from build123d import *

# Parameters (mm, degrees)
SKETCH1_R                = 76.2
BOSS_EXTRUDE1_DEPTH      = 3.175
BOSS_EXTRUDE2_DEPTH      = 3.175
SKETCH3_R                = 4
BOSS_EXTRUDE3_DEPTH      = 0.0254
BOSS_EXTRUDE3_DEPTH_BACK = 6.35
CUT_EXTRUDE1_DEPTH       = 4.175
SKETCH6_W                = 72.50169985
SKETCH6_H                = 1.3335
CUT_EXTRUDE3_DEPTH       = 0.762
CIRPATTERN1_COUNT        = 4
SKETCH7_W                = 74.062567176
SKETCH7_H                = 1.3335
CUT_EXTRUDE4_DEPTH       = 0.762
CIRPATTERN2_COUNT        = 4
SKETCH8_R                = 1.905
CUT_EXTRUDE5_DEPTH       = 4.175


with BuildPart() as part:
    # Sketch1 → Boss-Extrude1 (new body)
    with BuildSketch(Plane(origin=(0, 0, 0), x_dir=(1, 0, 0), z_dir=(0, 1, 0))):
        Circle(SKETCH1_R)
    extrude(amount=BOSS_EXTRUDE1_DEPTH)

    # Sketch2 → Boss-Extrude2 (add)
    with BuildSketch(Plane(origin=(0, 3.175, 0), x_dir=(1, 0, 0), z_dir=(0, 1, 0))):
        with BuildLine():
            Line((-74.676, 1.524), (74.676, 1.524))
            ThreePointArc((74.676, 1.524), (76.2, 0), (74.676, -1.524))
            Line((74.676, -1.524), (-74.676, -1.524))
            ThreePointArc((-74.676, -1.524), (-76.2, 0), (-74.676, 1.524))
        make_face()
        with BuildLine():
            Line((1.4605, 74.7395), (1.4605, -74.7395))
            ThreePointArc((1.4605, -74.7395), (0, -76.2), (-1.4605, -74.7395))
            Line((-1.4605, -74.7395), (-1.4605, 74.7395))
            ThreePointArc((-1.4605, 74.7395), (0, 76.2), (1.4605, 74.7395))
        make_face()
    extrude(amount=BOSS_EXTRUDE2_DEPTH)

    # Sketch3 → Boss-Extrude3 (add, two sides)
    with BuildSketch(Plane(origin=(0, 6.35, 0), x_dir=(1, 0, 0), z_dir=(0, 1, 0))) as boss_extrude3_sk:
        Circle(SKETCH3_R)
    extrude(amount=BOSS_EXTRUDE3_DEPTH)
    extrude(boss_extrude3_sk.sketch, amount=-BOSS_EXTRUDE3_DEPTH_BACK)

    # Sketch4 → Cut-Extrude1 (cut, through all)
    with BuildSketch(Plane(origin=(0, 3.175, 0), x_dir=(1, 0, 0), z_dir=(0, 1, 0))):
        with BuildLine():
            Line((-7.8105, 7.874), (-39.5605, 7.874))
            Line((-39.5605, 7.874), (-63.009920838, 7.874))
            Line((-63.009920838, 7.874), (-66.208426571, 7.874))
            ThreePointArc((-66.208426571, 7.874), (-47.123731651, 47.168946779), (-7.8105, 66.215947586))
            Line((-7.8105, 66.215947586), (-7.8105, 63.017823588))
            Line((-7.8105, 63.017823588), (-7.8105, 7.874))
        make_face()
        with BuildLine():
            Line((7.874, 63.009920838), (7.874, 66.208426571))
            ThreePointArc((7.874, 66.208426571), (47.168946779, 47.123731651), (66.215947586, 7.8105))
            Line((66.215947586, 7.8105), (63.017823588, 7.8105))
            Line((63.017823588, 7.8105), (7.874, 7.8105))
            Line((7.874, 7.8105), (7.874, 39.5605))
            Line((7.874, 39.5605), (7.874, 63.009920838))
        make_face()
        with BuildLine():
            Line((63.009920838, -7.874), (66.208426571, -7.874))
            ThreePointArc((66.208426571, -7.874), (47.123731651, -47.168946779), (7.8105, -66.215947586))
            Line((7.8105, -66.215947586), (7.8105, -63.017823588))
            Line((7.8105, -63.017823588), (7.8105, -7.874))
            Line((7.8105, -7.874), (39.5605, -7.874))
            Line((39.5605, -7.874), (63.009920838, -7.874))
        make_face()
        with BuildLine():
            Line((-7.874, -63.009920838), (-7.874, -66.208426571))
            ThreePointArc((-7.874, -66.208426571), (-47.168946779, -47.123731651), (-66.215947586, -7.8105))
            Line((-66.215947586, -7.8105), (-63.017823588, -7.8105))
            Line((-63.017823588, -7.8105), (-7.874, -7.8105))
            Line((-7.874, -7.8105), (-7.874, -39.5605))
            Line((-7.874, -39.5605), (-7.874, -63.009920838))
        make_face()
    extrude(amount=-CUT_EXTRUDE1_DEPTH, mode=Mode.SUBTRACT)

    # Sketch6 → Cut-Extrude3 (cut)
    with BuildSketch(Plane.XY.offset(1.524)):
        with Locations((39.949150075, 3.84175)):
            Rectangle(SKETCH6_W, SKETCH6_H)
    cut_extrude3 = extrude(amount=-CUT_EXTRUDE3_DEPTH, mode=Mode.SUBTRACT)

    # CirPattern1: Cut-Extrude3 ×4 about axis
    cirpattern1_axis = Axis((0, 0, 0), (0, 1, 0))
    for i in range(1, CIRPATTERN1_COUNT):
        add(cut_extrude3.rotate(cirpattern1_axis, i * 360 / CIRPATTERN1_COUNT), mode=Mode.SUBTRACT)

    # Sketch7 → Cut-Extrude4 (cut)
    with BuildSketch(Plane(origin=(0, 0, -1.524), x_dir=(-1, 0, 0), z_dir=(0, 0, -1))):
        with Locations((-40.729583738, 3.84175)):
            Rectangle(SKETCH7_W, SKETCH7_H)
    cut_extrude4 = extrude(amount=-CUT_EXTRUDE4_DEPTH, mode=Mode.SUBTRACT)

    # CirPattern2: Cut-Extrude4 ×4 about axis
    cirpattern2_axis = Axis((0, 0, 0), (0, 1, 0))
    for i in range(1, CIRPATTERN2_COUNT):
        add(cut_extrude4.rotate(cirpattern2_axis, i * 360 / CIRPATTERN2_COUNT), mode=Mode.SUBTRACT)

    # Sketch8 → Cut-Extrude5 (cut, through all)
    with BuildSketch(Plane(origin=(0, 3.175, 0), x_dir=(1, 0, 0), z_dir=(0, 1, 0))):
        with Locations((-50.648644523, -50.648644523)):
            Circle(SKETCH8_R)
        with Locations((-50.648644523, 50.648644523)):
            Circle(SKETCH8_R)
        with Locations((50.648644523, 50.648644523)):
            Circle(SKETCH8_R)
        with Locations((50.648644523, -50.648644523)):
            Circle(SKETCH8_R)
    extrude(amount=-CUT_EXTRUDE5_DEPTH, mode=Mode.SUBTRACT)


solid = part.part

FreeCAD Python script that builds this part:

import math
import FreeCAD as App
import Part
import Sketcher
Q = App.Units.Quantity


def add_polygon(sketch, points):
    """Adds a closed chain of lines whose ends are joined by coincident constraints."""
    first, n = sketch.GeometryCount, len(points)
    for a, b in zip(points, points[1:] + points[:1]):
        sketch.addGeometry(Part.LineSegment(App.Vector(*a, 0), App.Vector(*b, 0)), False)
    for i in range(n):
        sketch.addConstraint(Sketcher.Constraint("Coincident", first + i, 2, first + (i + 1) % n, 1))

doc = App.newDocument("Part")
params = doc.addObject("Spreadsheet::Sheet", "Params")
for row, (alias, value) in enumerate([
    ("sketch1_diameter", "6 in"),
    ("pad1_length", "0.125 in"),
    ("sketch2_radius", "0.06 in"),
    ("pad2_length", "0.125 in"),
    ("pad3_length", "0.001 in"),
    ("pad3_length2", "0.25 in"),
    ("sketch4_radius", "2.625 in"),
    ("pocket2_length", "0.03 in"),
    ("pocket3_length", "0.03 in"),
    ("sketch7_diameter", "0.15 in"),
], start=1):
    params.set(f"A{row}", alias)
    params.set(f"B{row}", "=" + value)
    params.setAlias(f"B{row}", alias)

body = doc.addObject("PartDesign::Body", "Body")

sketch1 = body.newObject("Sketcher::SketchObject", "Sketch")
sketch1.AttachmentSupport = (doc.getObject("XZ_Plane"), [""])
sketch1.MapMode = "FlatFace"
sketch1.addGeometry(Part.Circle(App.Vector(0, 0, 0), App.Vector(0, 0, 1), 76), False)
sketch1.addConstraint(Sketcher.Constraint("Coincident", 0, 3, -1, 1))
sketch1.addConstraint(Sketcher.Constraint("Diameter", 0, Q("6 in")))
sketch1.setExpression("Constraints[1]", "Params.sketch1_diameter")
pad1 = body.newObject("PartDesign::Pad", "Pad")
pad1.Profile = sketch1
pad1.setExpression("Length", "Params.pad1_length")
pad1.Reversed = True

sketch2 = body.newObject("Sketcher::SketchObject", "Sketch001")
sketch2.AttachmentSupport = (doc.getObject("XZ_Plane"), [""])
sketch2.MapMode = "FlatFace"
sketch2.AttachmentOffset = App.Placement(App.Vector(0, 0, -0.125 * 25.4), App.Rotation())
sketch2.addGeometry(Part.ArcOfCircle(Part.Circle(App.Vector(-74.7, 0, 0), App.Vector(0, 0, 1), 1.5), math.radians(90), math.radians(270)), False)
sketch2.addGeometry(Part.LineSegment(App.Vector(-74.7, 1.5, 0), App.Vector(-1.5, 1.5, 0)), False)
sketch2.addGeometry(Part.LineSegment(App.Vector(-1.5, 1.5, 0), App.Vector(-1.5, 74.7, 0)), False)
sketch2.addGeometry(Part.ArcOfCircle(Part.Circle(App.Vector(0, 74.7, 0), App.Vector(0, 0, 1), 1.5), math.radians(0), math.radians(180)), False)
sketch2.addGeometry(Part.LineSegment(App.Vector(1.5, 74.7, 0), App.Vector(1.5, 1.5, 0)), False)
sketch2.addGeometry(Part.LineSegment(App.Vector(1.5, 1.5, 0), App.Vector(74.7, 1.5, 0)), False)
sketch2.addGeometry(Part.ArcOfCircle(Part.Circle(App.Vector(74.7, 0, 0), App.Vector(0, 0, 1), 1.5), math.radians(-90), math.radians(90)), False)
sketch2.addGeometry(Part.LineSegment(App.Vector(74.7, -1.5, 0), App.Vector(1.5, -1.5, 0)), False)
sketch2.addGeometry(Part.LineSegment(App.Vector(1.5, -1.5, 0), App.Vector(1.5, -74.7, 0)), False)
sketch2.addGeometry(Part.ArcOfCircle(Part.Circle(App.Vector(0, -74.7, 0), App.Vector(0, 0, 1), 1.5), math.radians(180), math.radians(360)), False)
sketch2.addGeometry(Part.LineSegment(App.Vector(-1.5, -74.7, 0), App.Vector(-1.5, -1.5, 0)), False)
sketch2.addGeometry(Part.LineSegment(App.Vector(-1.5, -1.5, 0), App.Vector(-74.7, -1.5, 0)), False)
sketch2.addConstraint(Sketcher.Constraint("Tangent", 0, 1, 1, 1))
sketch2.addConstraint(Sketcher.Constraint("Coincident", 1, 2, 2, 1))
sketch2.addConstraint(Sketcher.Constraint("Tangent", 2, 2, 3, 2))
sketch2.addConstraint(Sketcher.Constraint("Tangent", 3, 1, 4, 1))
sketch2.addConstraint(Sketcher.Constraint("Coincident", 4, 2, 5, 1))
sketch2.addConstraint(Sketcher.Constraint("Tangent", 5, 2, 6, 2))
sketch2.addConstraint(Sketcher.Constraint("Tangent", 6, 1, 7, 1))
sketch2.addConstraint(Sketcher.Constraint("Coincident", 7, 2, 8, 1))
sketch2.addConstraint(Sketcher.Constraint("Tangent", 8, 2, 9, 2))
sketch2.addConstraint(Sketcher.Constraint("Tangent", 9, 1, 10, 1))
sketch2.addConstraint(Sketcher.Constraint("Coincident", 10, 2, 11, 1))
sketch2.addConstraint(Sketcher.Constraint("Tangent", 11, 2, 0, 2))
sketch2.addConstraint(Sketcher.Constraint("Horizontal", 1))
sketch2.addConstraint(Sketcher.Constraint("Vertical", 2))
sketch2.addConstraint(Sketcher.Constraint("Vertical", 4))
sketch2.addConstraint(Sketcher.Constraint("Horizontal", 5))
sketch2.addConstraint(Sketcher.Constraint("Horizontal", 7))
sketch2.addConstraint(Sketcher.Constraint("Vertical", 8))
sketch2.addConstraint(Sketcher.Constraint("Vertical", 10))
sketch2.addConstraint(Sketcher.Constraint("Horizontal", 11))
sketch2.addConstraint(Sketcher.Constraint("Equal", 0, 6))
sketch2.addConstraint(Sketcher.Constraint("Equal", 3, 9))
sketch2.addConstraint(Sketcher.Constraint("Symmetric", 0, 3, 6, 3, -1, 1))
sketch2.addConstraint(Sketcher.Constraint("Symmetric", 3, 3, 9, 3, -1, 1))
sketch2.addConstraint(Sketcher.Constraint("Symmetric", 1, 2, 4, 2, -2))
sketch2.addConstraint(Sketcher.Constraint("Equal", 11, 2))
sketch2.addConstraint(Sketcher.Constraint("Radius", 0, Q("0.06 in")))
sketch2.addConstraint(Sketcher.Constraint("Radius", 3, Q("0.0575 in")))
sketch2.addConstraint(Sketcher.Constraint("DistanceX", 0, 3, -1, 1, Q("2.94 in")))
sketch2.setExpression("Constraints[26]", "Params.sketch2_radius")
pad2 = body.newObject("PartDesign::Pad", "Pad001")
pad2.Profile = sketch2
pad2.setExpression("Length", "Params.pad2_length")
pad2.Reversed = True

sketch3 = body.newObject("Sketcher::SketchObject", "Sketch002")
sketch3.AttachmentSupport = (doc.getObject("XZ_Plane"), [""])
sketch3.MapMode = "FlatFace"
sketch3.AttachmentOffset = App.Placement(App.Vector(0, 0, -0.25 * 25.4), App.Rotation())
sketch3.addGeometry(Part.Circle(App.Vector(0, 0, 0), App.Vector(0, 0, 1), 4), False)
sketch3.addConstraint(Sketcher.Constraint("Coincident", 0, 3, -1, 1))
sketch3.addConstraint(Sketcher.Constraint("Diameter", 0, Q("8 mm")))
pad3 = body.newObject("PartDesign::Pad", "Pad002")
pad3.Profile = sketch3
pad3.Type = "TwoLengths"
pad3.setExpression("Length", "Params.pad3_length")
pad3.setExpression("Length2", "Params.pad3_length2")
pad3.Reversed = True

sketch4 = body.newObject("Sketcher::SketchObject", "Sketch003")
sketch4.AttachmentSupport = (doc.getObject("XZ_Plane"), [""])
sketch4.MapMode = "FlatFace"
sketch4.AttachmentOffset = App.Placement(App.Vector(0, 0, -0.125 * 25.4), App.Rotation())
sketch4.addGeometry(Part.LineSegment(App.Vector(-66, -8, 0), App.Vector(-8, -8, 0)), False)
sketch4.addGeometry(Part.LineSegment(App.Vector(-8, -8, 0), App.Vector(-8, -66, 0)), False)
sketch4.addGeometry(Part.ArcOfCircle(Part.Circle(App.Vector(0, 0, 0), App.Vector(0, 0, 1), 67), math.radians(-173), math.radians(-97)), False)
sketch4.addGeometry(Part.ArcOfCircle(Part.Circle(App.Vector(0, 0, 0), App.Vector(0, 0, 1), 67), math.radians(-83), math.radians(-7)), False)
sketch4.addGeometry(Part.LineSegment(App.Vector(8, -66, 0), App.Vector(8, -8, 0)), False)
sketch4.addGeometry(Part.LineSegment(App.Vector(8, -8, 0), App.Vector(66, -8, 0)), False)
sketch4.addGeometry(Part.ArcOfCircle(Part.Circle(App.Vector(0, 0, 0), App.Vector(0, 0, 1), 67), math.radians(7), math.radians(83)), False)
sketch4.addGeometry(Part.LineSegment(App.Vector(66, 8, 0), App.Vector(8, 8, 0)), False)
sketch4.addGeometry(Part.LineSegment(App.Vector(8, 8, 0), App.Vector(8, 66, 0)), False)
sketch4.addGeometry(Part.ArcOfCircle(Part.Circle(App.Vector(0, 0, 0), App.Vector(0, 0, 1), 67), math.radians(97), math.radians(173)), False)
sketch4.addGeometry(Part.LineSegment(App.Vector(-8, 66, 0), App.Vector(-8, 8, 0)), False)
sketch4.addGeometry(Part.LineSegment(App.Vector(-8, 8, 0), App.Vector(-66, 8, 0)), False)
sketch4.addConstraint(Sketcher.Constraint("Coincident", 0, 2, 1, 1))
sketch4.addConstraint(Sketcher.Constraint("Coincident", 1, 2, 2, 2))
sketch4.addConstraint(Sketcher.Constraint("Coincident", 2, 1, 0, 1))
sketch4.addConstraint(Sketcher.Constraint("Coincident", 3, 1, 4, 1))
sketch4.addConstraint(Sketcher.Constraint("Coincident", 4, 2, 5, 1))
sketch4.addConstraint(Sketcher.Constraint("Coincident", 5, 2, 3, 2))
sketch4.addConstraint(Sketcher.Constraint("Coincident", 6, 1, 7, 1))
sketch4.addConstraint(Sketcher.Constraint("Coincident", 7, 2, 8, 1))
sketch4.addConstraint(Sketcher.Constraint("Coincident", 8, 2, 6, 2))
sketch4.addConstraint(Sketcher.Constraint("Coincident", 9, 1, 10, 1))
sketch4.addConstraint(Sketcher.Constraint("Coincident", 10, 2, 11, 1))
sketch4.addConstraint(Sketcher.Constraint("Coincident", 11, 2, 9, 2))
sketch4.addConstraint(Sketcher.Constraint("Horizontal", 0))
sketch4.addConstraint(Sketcher.Constraint("Vertical", 1))
sketch4.addConstraint(Sketcher.Constraint("Vertical", 4))
sketch4.addConstraint(Sketcher.Constraint("Horizontal", 5))
sketch4.addConstraint(Sketcher.Constraint("Horizontal", 7))
sketch4.addConstraint(Sketcher.Constraint("Vertical", 8))
sketch4.addConstraint(Sketcher.Constraint("Vertical", 10))
sketch4.addConstraint(Sketcher.Constraint("Horizontal", 11))
sketch4.addConstraint(Sketcher.Constraint("Coincident", 2, 3, -1, 1))
sketch4.addConstraint(Sketcher.Constraint("Coincident", 3, 3, -1, 1))
sketch4.addConstraint(Sketcher.Constraint("Coincident", 6, 3, -1, 1))
sketch4.addConstraint(Sketcher.Constraint("Coincident", 9, 3, -1, 1))
sketch4.addConstraint(Sketcher.Constraint("Equal", 2, 3))
sketch4.addConstraint(Sketcher.Constraint("Equal", 3, 6))
sketch4.addConstraint(Sketcher.Constraint("Equal", 6, 9))
sketch4.addConstraint(Sketcher.Constraint("Symmetric", 0, 2, 7, 2, -1, 1))
sketch4.addConstraint(Sketcher.Constraint("Symmetric", 4, 2, 10, 2, -1, 1))
sketch4.addConstraint(Sketcher.Constraint("Equal", 11, 1))
sketch4.addConstraint(Sketcher.Constraint("Equal", 7, 4))
sketch4.addConstraint(Sketcher.Constraint("Radius", 2, Q("2.625 in")))
sketch4.addConstraint(Sketcher.Constraint("DistanceY", 0, 2, -1, 1, Q("0.31 in")))
sketch4.addConstraint(Sketcher.Constraint("DistanceX", 0, 2, -1, 1, Q("0.3075 in")))
sketch4.setExpression("Constraints[31]", "Params.sketch4_radius")
pocket1 = body.newObject("PartDesign::Pocket", "Pocket")
pocket1.Profile = sketch4
pocket1.Type = "ThroughAll"
pocket1.Reversed = True

sketch5 = body.newObject("Sketcher::SketchObject", "Sketch004")
sketch5.AttachmentSupport = (doc.getObject("XY_Plane"), [""])
sketch5.MapMode = "FlatFace"
sketch5.AttachmentOffset = App.Placement(App.Vector(0, 0, 0.06 * 25.4), App.Rotation())
add_polygon(sketch5, [(3.7, 4.5), (3.7, 3.2), (76.2, 3.2), (76.2, 4.5)])
sketch5.addConstraint(Sketcher.Constraint("Vertical", 0))
sketch5.addConstraint(Sketcher.Constraint("Horizontal", 1))
sketch5.addConstraint(Sketcher.Constraint("Vertical", 2))
sketch5.addConstraint(Sketcher.Constraint("Horizontal", 3))
sketch5.addConstraint(Sketcher.Constraint("DistanceX", -1, 1, 1, 2, Q("3 in")))
sketch5.addConstraint(Sketcher.Constraint("DistanceY", 0, 2, 0, 1, Q("0.0525 in")))
sketch5.addConstraint(Sketcher.Constraint("DistanceY", -1, 1, 0, 2, Q("0.125 in")))
sketch5.addConstraint(Sketcher.Constraint("DistanceX", 1, 1, 1, 2, Q("72.5017 mm")))
pocket2 = body.newObject("PartDesign::Pocket", "Pocket001")
pocket2.Profile = sketch5
pocket2.setExpression("Length", "Params.pocket2_length")
doc.recompute()

polarpattern = body.newObject("PartDesign::PolarPattern", "PolarPattern")
polarpattern.Originals = [pocket2]
polarpattern.Axis = (doc.getObject("Y_Axis"), [""])
polarpattern.Angle = 360
polarpattern.Occurrences = 4
body.Tip = polarpattern

sketch6 = body.newObject("Sketcher::SketchObject", "Sketch005")
sketch6.AttachmentSupport = (doc.getObject("XY_Plane"), [""])
sketch6.MapMode = "FlatFace"
sketch6.AttachmentOffset = App.Placement(App.Vector(0, 0, -0.06 * 25.4), App.Rotation())
add_polygon(sketch6, [(77.8, 4.5), (77.8, 3.2), (3.7, 3.2), (3.7, 4.5)])
sketch6.addConstraint(Sketcher.Constraint("Vertical", 0))
sketch6.addConstraint(Sketcher.Constraint("Horizontal", 1))
sketch6.addConstraint(Sketcher.Constraint("Vertical", 2))
sketch6.addConstraint(Sketcher.Constraint("Horizontal", 3))
sketch6.addConstraint(Sketcher.Constraint("DistanceY", 0, 2, 0, 1, Q("0.0525 in")))
sketch6.addConstraint(Sketcher.Constraint("DistanceY", -1, 1, 0, 2, Q("0.125 in")))
sketch6.addConstraint(Sketcher.Constraint("DistanceX", -1, 1, 1, 2, Q("3.6983 mm")))
sketch6.addConstraint(Sketcher.Constraint("DistanceX", 1, 2, 1, 1, Q("74.062567 mm")))
pocket3 = body.newObject("PartDesign::Pocket", "Pocket002")
pocket3.Profile = sketch6
pocket3.setExpression("Length", "Params.pocket3_length")
pocket3.Reversed = True
doc.recompute()

polarpattern2 = body.newObject("PartDesign::PolarPattern", "PolarPattern001")
polarpattern2.Originals = [pocket3]
polarpattern2.Axis = (doc.getObject("Y_Axis"), [""])
polarpattern2.Angle = 360
polarpattern2.Occurrences = 4
body.Tip = polarpattern2

sketch7 = body.newObject("Sketcher::SketchObject", "Sketch006")
sketch7.AttachmentSupport = (doc.getObject("XZ_Plane"), [""])
sketch7.MapMode = "FlatFace"
sketch7.AttachmentOffset = App.Placement(App.Vector(0, 0, -0.125 * 25.4), App.Rotation())
sketch7.addGeometry(Part.Circle(App.Vector(-50.6, 50.6, 0), App.Vector(0, 0, 1), 1.9), False)
sketch7.addGeometry(Part.Circle(App.Vector(-50.6, -50.6, 0), App.Vector(0, 0, 1), 1.9), False)
sketch7.addGeometry(Part.Circle(App.Vector(50.6, -50.6, 0), App.Vector(0, 0, 1), 1.9), False)
sketch7.addGeometry(Part.Circle(App.Vector(50.6, 50.6, 0), App.Vector(0, 0, 1), 1.9), False)
sketch7.addConstraint(Sketcher.Constraint("Equal", 0, 1))
sketch7.addConstraint(Sketcher.Constraint("Equal", 1, 2))
sketch7.addConstraint(Sketcher.Constraint("Equal", 2, 3))
sketch7.addConstraint(Sketcher.Constraint("Symmetric", 0, 3, 2, 3, -1, 1))
sketch7.addConstraint(Sketcher.Constraint("Symmetric", 1, 3, 3, 3, -1, 1))
sketch7.addConstraint(Sketcher.Constraint("Symmetric", 1, 3, 2, 3, -2))
sketch7.addConstraint(Sketcher.Constraint("Diameter", 0, Q("0.15 in")))
sketch7.addConstraint(Sketcher.Constraint("DistanceY", 1, 3, 0, 3, Q("101.297289 mm")))
sketch7.addConstraint(Sketcher.Constraint("DistanceX", 1, 3, 2, 3, Q("101.297289 mm")))
sketch7.setExpression("Constraints[6]", "Params.sketch7_diameter")
pocket4 = body.newObject("PartDesign::Pocket", "Pocket003")
pocket4.Profile = sketch7
pocket4.Type = "ThroughAll"
pocket4.Reversed = True

doc.recompute()
